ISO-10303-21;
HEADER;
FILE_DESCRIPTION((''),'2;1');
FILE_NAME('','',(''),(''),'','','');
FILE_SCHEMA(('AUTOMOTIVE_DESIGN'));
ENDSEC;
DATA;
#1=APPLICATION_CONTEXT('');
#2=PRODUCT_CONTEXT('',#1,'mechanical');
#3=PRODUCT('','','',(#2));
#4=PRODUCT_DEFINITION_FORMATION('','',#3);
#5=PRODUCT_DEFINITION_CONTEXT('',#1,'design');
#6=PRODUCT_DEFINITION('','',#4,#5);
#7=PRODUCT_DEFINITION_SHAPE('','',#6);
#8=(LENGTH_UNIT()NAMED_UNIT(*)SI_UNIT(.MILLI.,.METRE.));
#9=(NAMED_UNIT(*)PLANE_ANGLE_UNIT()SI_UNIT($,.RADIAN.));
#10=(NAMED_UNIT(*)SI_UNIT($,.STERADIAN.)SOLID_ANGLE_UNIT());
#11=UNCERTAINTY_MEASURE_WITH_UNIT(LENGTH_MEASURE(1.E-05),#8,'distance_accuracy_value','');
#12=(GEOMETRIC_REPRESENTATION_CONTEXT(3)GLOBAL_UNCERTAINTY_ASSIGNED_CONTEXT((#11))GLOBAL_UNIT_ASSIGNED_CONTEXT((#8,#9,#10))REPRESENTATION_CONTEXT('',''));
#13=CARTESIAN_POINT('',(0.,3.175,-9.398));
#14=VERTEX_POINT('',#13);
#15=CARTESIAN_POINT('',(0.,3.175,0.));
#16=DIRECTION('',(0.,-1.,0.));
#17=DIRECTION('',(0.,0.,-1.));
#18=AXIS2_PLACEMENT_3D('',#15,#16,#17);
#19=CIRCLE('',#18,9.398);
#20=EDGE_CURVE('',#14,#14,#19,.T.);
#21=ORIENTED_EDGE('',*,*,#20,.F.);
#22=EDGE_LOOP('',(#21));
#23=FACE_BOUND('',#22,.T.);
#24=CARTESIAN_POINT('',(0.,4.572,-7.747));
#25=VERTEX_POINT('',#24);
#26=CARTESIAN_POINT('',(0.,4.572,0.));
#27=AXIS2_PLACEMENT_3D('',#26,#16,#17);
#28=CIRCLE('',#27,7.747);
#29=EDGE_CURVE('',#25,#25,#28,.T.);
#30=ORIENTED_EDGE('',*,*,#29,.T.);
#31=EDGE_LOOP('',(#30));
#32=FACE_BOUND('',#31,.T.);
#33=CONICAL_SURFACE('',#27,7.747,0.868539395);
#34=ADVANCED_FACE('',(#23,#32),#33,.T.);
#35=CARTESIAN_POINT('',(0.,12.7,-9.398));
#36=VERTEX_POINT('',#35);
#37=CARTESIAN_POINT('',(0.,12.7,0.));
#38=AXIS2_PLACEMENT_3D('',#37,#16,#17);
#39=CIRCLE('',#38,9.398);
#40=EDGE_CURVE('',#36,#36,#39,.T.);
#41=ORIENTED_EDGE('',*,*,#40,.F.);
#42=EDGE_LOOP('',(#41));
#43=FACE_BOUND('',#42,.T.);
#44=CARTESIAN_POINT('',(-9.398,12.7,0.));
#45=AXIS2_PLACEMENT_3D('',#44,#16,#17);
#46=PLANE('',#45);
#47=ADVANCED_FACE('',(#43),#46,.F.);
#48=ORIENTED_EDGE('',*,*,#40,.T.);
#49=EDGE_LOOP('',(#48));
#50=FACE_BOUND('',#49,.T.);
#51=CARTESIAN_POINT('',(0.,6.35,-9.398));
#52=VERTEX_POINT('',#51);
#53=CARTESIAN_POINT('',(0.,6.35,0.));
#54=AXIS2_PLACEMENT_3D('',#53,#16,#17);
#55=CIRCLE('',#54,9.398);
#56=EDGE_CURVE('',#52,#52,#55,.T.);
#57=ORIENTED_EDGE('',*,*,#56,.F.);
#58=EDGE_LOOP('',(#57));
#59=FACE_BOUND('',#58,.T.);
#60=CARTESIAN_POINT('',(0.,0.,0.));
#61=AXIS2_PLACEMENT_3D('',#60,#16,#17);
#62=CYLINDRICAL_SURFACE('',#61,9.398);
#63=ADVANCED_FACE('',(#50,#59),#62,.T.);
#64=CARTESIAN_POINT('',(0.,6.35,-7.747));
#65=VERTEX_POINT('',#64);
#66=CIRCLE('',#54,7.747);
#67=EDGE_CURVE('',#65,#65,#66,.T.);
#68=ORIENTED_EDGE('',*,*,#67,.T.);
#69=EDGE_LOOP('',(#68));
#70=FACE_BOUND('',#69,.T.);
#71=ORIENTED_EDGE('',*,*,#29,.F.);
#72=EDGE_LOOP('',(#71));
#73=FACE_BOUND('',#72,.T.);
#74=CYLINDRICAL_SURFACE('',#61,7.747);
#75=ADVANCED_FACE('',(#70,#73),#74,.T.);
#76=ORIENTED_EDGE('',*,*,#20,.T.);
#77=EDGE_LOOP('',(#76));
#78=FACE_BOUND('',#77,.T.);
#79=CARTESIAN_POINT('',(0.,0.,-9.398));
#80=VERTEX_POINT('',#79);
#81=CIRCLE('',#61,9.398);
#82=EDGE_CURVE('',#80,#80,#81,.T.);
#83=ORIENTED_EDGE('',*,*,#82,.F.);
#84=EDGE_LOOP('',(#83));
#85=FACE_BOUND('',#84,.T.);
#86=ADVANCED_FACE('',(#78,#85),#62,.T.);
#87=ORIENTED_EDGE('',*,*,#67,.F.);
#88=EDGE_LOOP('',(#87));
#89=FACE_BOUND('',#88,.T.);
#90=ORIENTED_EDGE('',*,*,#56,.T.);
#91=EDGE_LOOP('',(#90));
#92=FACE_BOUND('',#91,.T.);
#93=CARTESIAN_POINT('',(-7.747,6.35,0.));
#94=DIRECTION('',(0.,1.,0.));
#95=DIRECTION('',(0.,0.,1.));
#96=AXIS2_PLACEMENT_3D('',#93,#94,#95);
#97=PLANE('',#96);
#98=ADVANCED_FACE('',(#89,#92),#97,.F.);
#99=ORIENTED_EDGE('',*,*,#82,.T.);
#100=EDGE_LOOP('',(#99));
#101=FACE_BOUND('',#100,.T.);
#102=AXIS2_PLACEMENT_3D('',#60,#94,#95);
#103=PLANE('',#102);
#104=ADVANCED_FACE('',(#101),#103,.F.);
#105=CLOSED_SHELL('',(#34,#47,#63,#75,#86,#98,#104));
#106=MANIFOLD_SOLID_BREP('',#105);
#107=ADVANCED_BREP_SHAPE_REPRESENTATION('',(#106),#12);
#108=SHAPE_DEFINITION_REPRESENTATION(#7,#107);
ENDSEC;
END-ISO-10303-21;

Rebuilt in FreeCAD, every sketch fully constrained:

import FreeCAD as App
import Part
import Sketcher

V = App.Vector
Q = App.Units.Quantity

doc = App.newDocument("Part")
body = doc.addObject("PartDesign::Body", "Body")

# Sketch on XY plane
sketch1 = body.newObject("Sketcher::SketchObject", "Sketch")
sketch1.AttachmentSupport = (doc.getObject("XY_Plane"), [""])
sketch1.MapMode = "FlatFace"
sketch1.addGeometry([
    Part.LineSegment(V(-9.4, 0, 0), V(0, 0, 0)),  # 0
    Part.LineSegment(V(0, 0, 0), V(0, 12.7, 0)),  # 1
    Part.LineSegment(V(0, 12.7, 0), V(-9.4, 12.7, 0)),  # 2
    Part.LineSegment(V(-9.4, 12.7, 0), V(-9.4, 6.3, 0)),  # 3
    Part.LineSegment(V(-9.4, 6.3, 0), V(-7.7, 6.3, 0)),  # 4
    Part.LineSegment(V(-7.7, 6.3, 0), V(-7.7, 4.6, 0)),  # 5
    Part.LineSegment(V(-7.7, 4.6, 0), V(-9.4, 3.2, 0)),  # 6
    Part.LineSegment(V(-9.4, 3.2, 0), V(-9.4, 0, 0)),  # 7
], False)
sketch1.addConstraint([
    Sketcher.Constraint("Coincident", 0, 2, 1, 1),
    Sketcher.Constraint("Coincident", 1, 2, 2, 1),
    Sketcher.Constraint("Coincident", 2, 2, 3, 1),
    Sketcher.Constraint("Coincident", 3, 2, 4, 1),
    Sketcher.Constraint("Coincident", 4, 2, 5, 1),
    Sketcher.Constraint("Coincident", 5, 2, 6, 1),
    Sketcher.Constraint("Coincident", 6, 2, 7, 1),
    Sketcher.Constraint("Coincident", 7, 2, 0, 1),
    Sketcher.Constraint("Horizontal", 0),
    Sketcher.Constraint("Vertical", 1),
    Sketcher.Constraint("Horizontal", 2),
    Sketcher.Constraint("Vertical", 3),
    Sketcher.Constraint("Horizontal", 4),
    Sketcher.Constraint("Vertical", 5),
    Sketcher.Constraint("Vertical", 7),
    Sketcher.Constraint("Coincident", 0, 2, -1, 1),
    Sketcher.Constraint("Vertical", 3, 2, 6, 2),
    Sketcher.Constraint("DistanceY", 1, 1, 1, 2, Q("0.5 in")),
    Sketcher.Constraint("DistanceX", 0, 1, 0, 2, Q("0.37 in")),
    Sketcher.Constraint("DistanceY", 3, 2, 3, 1, Q("0.25 in")),
    Sketcher.Constraint("DistanceY", 5, 2, 5, 1, Q("0.07 in")),
    Sketcher.Constraint("DistanceX", 4, 1, 4, 2, Q("0.065 in")),
    Sketcher.Constraint("DistanceY", 7, 2, 7, 1, Q("0.125 in")),
])
revolution = body.newObject("PartDesign::Revolution", "Revolution")
revolution.Profile = sketch1
revolution.ReferenceAxis = (sketch1, ["V_Axis"])
revolution.Angle = 360

doc.recompute()
